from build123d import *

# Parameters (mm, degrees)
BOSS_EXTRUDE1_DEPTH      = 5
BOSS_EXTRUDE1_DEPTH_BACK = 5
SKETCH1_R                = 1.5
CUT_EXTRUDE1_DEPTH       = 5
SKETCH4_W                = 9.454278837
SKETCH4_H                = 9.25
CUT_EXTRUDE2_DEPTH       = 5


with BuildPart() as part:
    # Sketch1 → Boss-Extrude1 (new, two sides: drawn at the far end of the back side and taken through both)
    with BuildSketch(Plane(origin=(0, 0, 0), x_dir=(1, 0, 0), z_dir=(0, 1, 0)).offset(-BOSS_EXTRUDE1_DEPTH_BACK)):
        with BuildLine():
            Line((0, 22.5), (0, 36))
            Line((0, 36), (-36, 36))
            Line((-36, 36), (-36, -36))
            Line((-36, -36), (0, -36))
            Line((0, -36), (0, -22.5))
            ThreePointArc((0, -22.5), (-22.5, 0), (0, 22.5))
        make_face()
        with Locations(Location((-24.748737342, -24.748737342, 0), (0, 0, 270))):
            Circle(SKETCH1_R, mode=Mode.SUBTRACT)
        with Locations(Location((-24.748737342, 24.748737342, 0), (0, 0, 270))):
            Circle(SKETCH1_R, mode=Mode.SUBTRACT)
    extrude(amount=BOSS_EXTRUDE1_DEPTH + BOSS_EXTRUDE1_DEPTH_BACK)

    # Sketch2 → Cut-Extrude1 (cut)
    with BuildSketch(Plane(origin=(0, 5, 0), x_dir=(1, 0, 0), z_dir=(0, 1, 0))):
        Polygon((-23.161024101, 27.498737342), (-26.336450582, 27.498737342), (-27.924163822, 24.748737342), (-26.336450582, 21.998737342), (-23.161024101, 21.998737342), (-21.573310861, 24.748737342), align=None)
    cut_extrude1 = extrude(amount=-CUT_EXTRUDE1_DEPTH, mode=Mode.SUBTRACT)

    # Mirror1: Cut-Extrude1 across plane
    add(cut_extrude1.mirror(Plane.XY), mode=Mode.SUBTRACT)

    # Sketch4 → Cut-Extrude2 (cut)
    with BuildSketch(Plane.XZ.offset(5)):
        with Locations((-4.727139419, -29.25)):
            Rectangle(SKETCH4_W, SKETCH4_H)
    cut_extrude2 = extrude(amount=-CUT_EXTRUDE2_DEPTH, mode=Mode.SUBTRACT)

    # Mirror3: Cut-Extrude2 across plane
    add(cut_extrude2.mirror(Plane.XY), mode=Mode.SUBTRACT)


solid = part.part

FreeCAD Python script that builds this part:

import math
import FreeCAD as App
import Part
import Sketcher

V = App.Vector
Q = App.Units.Quantity


def add_polygon(sketch, points):
    """Adds a closed chain of lines whose ends are joined by coincident constraints."""
    first, n = sketch.GeometryCount, len(points)
    for a, b in zip(points, points[1:] + points[:1]):
        sketch.addGeometry(Part.LineSegment(App.Vector(*a, 0), App.Vector(*b, 0)), False)
    for i in range(n):
        sketch.addConstraint(Sketcher.Constraint("Coincident", first + i, 2, first + (i + 1) % n, 1))

doc = App.newDocument("Part")
body = doc.addObject("PartDesign::Body", "Body")

# Sketch on XZ plane
sketch1 = body.newObject("Sketcher::SketchObject", "Sketch")
sketch1.AttachmentSupport = (doc.getObject("XZ_Plane"), [""])
sketch1.MapMode = "FlatFace"
sketch1.addGeometry(Part.LineSegment(V(0, -22.5, 0), V(0, -36, 0)), False)
sketch1.addGeometry(Part.LineSegment(V(0, -36, 0), V(-36, -36, 0)), False)
sketch1.addGeometry(Part.LineSegment(V(-36, -36, 0), V(-36, 36, 0)), False)
sketch1.addGeometry(Part.LineSegment(V(-36, 36, 0), V(0, 36, 0)), False)
sketch1.addGeometry(Part.LineSegment(V(0, 36, 0), V(0, 22.5, 0)), False)
sketch1.addGeometry(Part.ArcOfCircle(Part.Circle(V(0, 0, 0), V(0, 0, 1), 22.5), math.radians(90), math.radians(270)), False)
sketch1.addGeometry(Part.Circle(V(-24.7, 24.7, 0), V(0, 0, 1), 1.5), False)
sketch1.addGeometry(Part.Circle(V(-24.7, -24.7, 0), V(0, 0, 1), 1.5), False)
sketch1.addConstraint(Sketcher.Constraint("Coincident", 0, 2, 1, 1))
sketch1.addConstraint(Sketcher.Constraint("Coincident", 1, 2, 2, 1))
sketch1.addConstraint(Sketcher.Constraint("Coincident", 2, 2, 3, 1))
sketch1.addConstraint(Sketcher.Constraint("Coincident", 3, 2, 4, 1))
sketch1.addConstraint(Sketcher.Constraint("Coincident", 4, 2, 5, 1))
sketch1.addConstraint(Sketcher.Constraint("Coincident", 5, 2, 0, 1))
sketch1.addConstraint(Sketcher.Constraint("Vertical", 0))
sketch1.addConstraint(Sketcher.Constraint("Horizontal", 1))
sketch1.addConstraint(Sketcher.Constraint("Vertical", 2))
sketch1.addConstraint(Sketcher.Constraint("Horizontal", 3))
sketch1.addConstraint(Sketcher.Constraint("Vertical", 4))
sketch1.addConstraint(Sketcher.Constraint("Coincident", 5, 3, -1, 1))
sketch1.addConstraint(Sketcher.Constraint("Equal", 6, 7))
sketch1.addConstraint(Sketcher.Constraint("Symmetric", 0, 2, 3, 2, -1, 1))
sketch1.addConstraint(Sketcher.Constraint("Symmetric", 6, 3, 7, 3, -1))
sketch1.addConstraint(Sketcher.Constraint("PointOnObject", 0, 2, -2))
sketch1.addConstraint(Sketcher.Constraint("Diameter", 6, 3.0))
sketch1.addConstraint(Sketcher.Constraint("Radius", 5, 22.5))
sketch1.addConstraint(Sketcher.Constraint("DistanceX", 1, 2, 1, 1, 36.0))
sketch1.addConstraint(Sketcher.Constraint("DistanceY", 2, 1, 2, 2, 72.0))
sketch1.addConstraint(Sketcher.Constraint("DistanceX", 6, 3, -1, 1, 24.748737))
sketch1.addConstraint(Sketcher.Constraint("DistanceY", -1, 1, 6, 3, 24.748737))
pad1 = body.newObject("PartDesign::Pad", "Pad")
pad1.Profile = sketch1
pad1.Type = "TwoLengths"
pad1.Length = 5
pad1.Length2 = 5
pad1.Reversed = True

# Sketch on XZ plane
sketch2 = body.newObject("Sketcher::SketchObject", "Sketch001")
sketch2.AttachmentSupport = (doc.getObject("XZ_Plane"), [""])
sketch2.MapMode = "FlatFace"
sketch2.AttachmentOffset = App.Placement(V(0, 0, -5), App.Rotation())
add_polygon(sketch2, [(-23.2, -27.5), (-26.3, -27.5), (-27.9, -24.7), (-26.3, -22), (-23.2, -22), (-21.6, -24.7)])  # lines 0-5
sketch2.addConstraint(Sketcher.Constraint("Horizontal", 0))
sketch2.addConstraint(Sketcher.Constraint("Horizontal", 3))
sketch2.addConstraint(Sketcher.Constraint("Parallel", 1, 4))
sketch2.addConstraint(Sketcher.Constraint("Parallel", 2, 5))
sketch2.addConstraint(Sketcher.Constraint("Horizontal", 1, 2, 4, 2))
sketch2.addConstraint(Sketcher.Constraint("Vertical", 0, 2, 2, 2))
sketch2.addConstraint(Sketcher.Constraint("Vertical", 3, 2, 5, 2))
sketch2.addConstraint(Sketcher.Constraint("Angle", 1, Q("120 deg")))
sketch2.addConstraint(Sketcher.Constraint("DistanceY", 0, 2, 2, 2, 5.5))
sketch2.addConstraint(Sketcher.Constraint("DistanceX", 0, 2, 0, 1, 3.175426))
sketch2.addConstraint(Sketcher.Constraint("DistanceX", 0, 2, -1, 1, 26.336451))
sketch2.addConstraint(Sketcher.Constraint("DistanceY", 0, 2, -1, 1, 27.498737))
pocket1 = body.newObject("PartDesign::Pocket", "Pocket")
pocket1.Profile = sketch2
pocket1.Length = 5
pocket1.Reversed = True
doc.recompute()

mirrored = body.newObject("PartDesign::Mirrored", "Mirrored")
mirrored.Originals = [pocket1]
mirrored.MirrorPlane = (doc.getObject("XY_Plane"), [""])
body.Tip = mirrored

# Sketch on XZ plane
sketch3 = body.newObject("Sketcher::SketchObject", "Sketch002")
sketch3.AttachmentSupport = (doc.getObject("XZ_Plane"), [""])
sketch3.MapMode = "FlatFace"
sketch3.AttachmentOffset = App.Placement(V(0, 0, 5), App.Rotation())
add_polygon(sketch3, [(-9, -25), (-9, -34), (0, -34), (0, -25)])  # lines 0-3
sketch3.addConstraint(Sketcher.Constraint("Vertical", 0))
sketch3.addConstraint(Sketcher.Constraint("Horizontal", 1))
sketch3.addConstraint(Sketcher.Constraint("Vertical", 2))
sketch3.addConstraint(Sketcher.Constraint("Horizontal", 3))
sketch3.addConstraint(Sketcher.Constraint("PointOnObject", 1, 2, -2))
sketch3.addConstraint(Sketcher.Constraint("DistanceY", 0, 2, 0, 1, 9.25))
sketch3.addConstraint(Sketcher.Constraint("DistanceY", 0, 2, -1, 1, 33.875))
sketch3.addConstraint(Sketcher.Constraint("DistanceX", 1, 1, 1, 2, 9.454279))
pocket2 = body.newObject("PartDesign::Pocket", "Pocket001")
pocket2.Profile = sketch3
pocket2.Length = 5
doc.recompute()

mirrored2 = body.newObject("PartDesign::Mirrored", "Mirrored001")
mirrored2.Originals = [pocket2]
mirrored2.MirrorPlane = (doc.getObject("XY_Plane"), [""])
body.Tip = mirrored2

doc.recompute()
